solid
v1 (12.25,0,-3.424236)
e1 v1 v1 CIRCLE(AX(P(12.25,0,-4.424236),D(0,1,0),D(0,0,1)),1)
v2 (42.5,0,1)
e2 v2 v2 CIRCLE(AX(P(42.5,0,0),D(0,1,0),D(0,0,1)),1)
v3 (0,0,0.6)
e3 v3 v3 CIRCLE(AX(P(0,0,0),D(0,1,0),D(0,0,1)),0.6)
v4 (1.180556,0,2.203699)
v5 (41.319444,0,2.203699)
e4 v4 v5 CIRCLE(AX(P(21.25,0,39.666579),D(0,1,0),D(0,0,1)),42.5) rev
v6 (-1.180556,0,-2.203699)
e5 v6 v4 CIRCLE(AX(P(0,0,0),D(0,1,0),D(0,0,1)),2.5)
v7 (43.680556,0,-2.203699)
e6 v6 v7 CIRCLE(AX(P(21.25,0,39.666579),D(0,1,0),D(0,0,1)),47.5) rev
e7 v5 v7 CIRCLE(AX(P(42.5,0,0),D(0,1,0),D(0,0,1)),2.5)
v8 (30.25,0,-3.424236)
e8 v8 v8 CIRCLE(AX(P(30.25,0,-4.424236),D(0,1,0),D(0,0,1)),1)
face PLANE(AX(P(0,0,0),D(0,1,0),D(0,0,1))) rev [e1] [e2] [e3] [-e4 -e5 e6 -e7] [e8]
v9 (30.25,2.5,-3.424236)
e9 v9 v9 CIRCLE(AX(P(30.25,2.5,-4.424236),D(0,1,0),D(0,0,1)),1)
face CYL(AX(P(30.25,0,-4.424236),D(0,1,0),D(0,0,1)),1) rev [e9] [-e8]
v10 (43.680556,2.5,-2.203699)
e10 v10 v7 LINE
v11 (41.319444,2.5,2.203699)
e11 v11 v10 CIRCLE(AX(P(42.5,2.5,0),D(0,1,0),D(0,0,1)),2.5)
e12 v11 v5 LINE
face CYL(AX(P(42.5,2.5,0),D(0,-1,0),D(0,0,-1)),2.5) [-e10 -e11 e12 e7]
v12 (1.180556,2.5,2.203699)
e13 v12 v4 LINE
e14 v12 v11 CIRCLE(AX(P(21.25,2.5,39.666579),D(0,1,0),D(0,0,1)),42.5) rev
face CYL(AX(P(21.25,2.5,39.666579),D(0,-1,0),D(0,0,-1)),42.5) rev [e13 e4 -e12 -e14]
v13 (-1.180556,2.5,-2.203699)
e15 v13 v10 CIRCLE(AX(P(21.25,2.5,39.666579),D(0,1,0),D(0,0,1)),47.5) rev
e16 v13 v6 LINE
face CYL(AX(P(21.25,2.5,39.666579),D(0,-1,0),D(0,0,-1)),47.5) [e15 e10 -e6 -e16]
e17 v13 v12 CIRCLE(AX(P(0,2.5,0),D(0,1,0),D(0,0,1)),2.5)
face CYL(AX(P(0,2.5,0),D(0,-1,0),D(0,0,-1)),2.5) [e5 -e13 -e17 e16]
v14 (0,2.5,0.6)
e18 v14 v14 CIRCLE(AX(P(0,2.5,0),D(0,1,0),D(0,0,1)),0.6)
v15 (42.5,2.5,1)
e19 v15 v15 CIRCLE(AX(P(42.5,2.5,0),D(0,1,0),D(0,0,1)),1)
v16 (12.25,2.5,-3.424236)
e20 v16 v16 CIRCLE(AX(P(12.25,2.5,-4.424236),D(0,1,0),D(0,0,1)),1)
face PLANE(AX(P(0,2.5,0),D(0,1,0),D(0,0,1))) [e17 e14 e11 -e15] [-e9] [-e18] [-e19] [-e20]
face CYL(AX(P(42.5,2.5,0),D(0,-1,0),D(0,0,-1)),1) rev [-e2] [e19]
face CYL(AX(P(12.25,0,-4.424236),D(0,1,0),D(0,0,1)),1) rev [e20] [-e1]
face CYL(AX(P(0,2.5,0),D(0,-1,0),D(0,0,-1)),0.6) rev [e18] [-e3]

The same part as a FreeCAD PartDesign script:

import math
import FreeCAD as App
import Part
import Sketcher

V = App.Vector

doc = App.newDocument("Part")
body = doc.addObject("PartDesign::Body", "Body")

# Sketch on XZ plane
sketch1 = body.newObject("Sketcher::SketchObject", "Sketch")
sketch1.AttachmentSupport = (doc.getObject("XZ_Plane"), [""])
sketch1.MapMode = "FlatFace"
sketch1.addGeometry(Part.ArcOfCircle(Part.Circle(V(0, 0, 0), V(0, 0, 1), 2.5), math.radians(62), math.radians(242)), False)
sketch1.addGeometry(Part.ArcOfCircle(Part.Circle(V(21.2, 39.7, 0), V(0, 0, 1), 42.5), math.radians(-118), math.radians(-62)), False)
sketch1.addGeometry(Part.ArcOfCircle(Part.Circle(V(42.5, 0, 0), V(0, 0, 1), 2.5), math.radians(-62), math.radians(118)), False)
sketch1.addGeometry(Part.ArcOfCircle(Part.Circle(V(21.2, 39.7, 0), V(0, 0, 1), 47.5), math.radians(-118), math.radians(-62)), False)
sketch1.addGeometry(Part.Circle(V(0, 0, 0), V(0, 0, 1), 0.6), False)
sketch1.addGeometry(Part.Circle(V(42.5, 0, 0), V(0, 0, 1), 1), False)
sketch1.addConstraint(Sketcher.Constraint("Tangent", 0, 1, 1, 1))
sketch1.addConstraint(Sketcher.Constraint("Tangent", 1, 2, 2, 2))
sketch1.addConstraint(Sketcher.Constraint("Tangent", 2, 1, 3, 2))
sketch1.addConstraint(Sketcher.Constraint("Tangent", 3, 1, 0, 2))
sketch1.addConstraint(Sketcher.Constraint("Coincident", 0, 3, -1, 1))
sketch1.addConstraint(Sketcher.Constraint("Coincident", 4, 3, -1, 1))
sketch1.addConstraint(Sketcher.Constraint("Coincident", 3, 3, 1, 3))
sketch1.addConstraint(Sketcher.Constraint("Coincident", 5, 3, 2, 3))
sketch1.addConstraint(Sketcher.Constraint("PointOnObject", 2, 3, -1))
sketch1.addConstraint(Sketcher.Constraint("Diameter", 5, 2.0))
sketch1.addConstraint(Sketcher.Constraint("Diameter", 4, 1.2))
sketch1.addConstraint(Sketcher.Constraint("Radius", 0, 2.5))
sketch1.addConstraint(Sketcher.Constraint("Radius", 1, 42.5))
sketch1.addConstraint(Sketcher.Constraint("DistanceX", -1, 1, 2, 3, 42.5))
pad1 = body.newObject("PartDesign::Pad", "Pad")
pad1.Profile = sketch1
pad1.Length = 2.5
pad1.Reversed = True

# Sketch on XZ plane
sketch2 = body.newObject("Sketcher::SketchObject", "Sketch001")
sketch2.AttachmentSupport = (doc.getObject("XZ_Plane"), [""])
sketch2.MapMode = "FlatFace"
sketch2.AttachmentOffset = App.Placement(V(0, 0, -2.5), App.Rotation())
sketch2.addGeometry(Part.Circle(V(12.2, -4.4, 0), V(0, 0, 1), 1), False)
sketch2.addGeometry(Part.Circle(V(30.2, -4.4, 0), V(0, 0, 1), 1), False)
sketch2.addConstraint(Sketcher.Constraint("Equal", 0, 1))
sketch2.addConstraint(Sketcher.Constraint("Horizontal", 0, 3, 1, 3))
sketch2.addConstraint(Sketcher.Constraint("Diameter", 0, 2.0))
sketch2.addConstraint(Sketcher.Constraint("DistanceX", 0, 3, 1, 3, 18.0))
sketch2.addConstraint(Sketcher.Constraint("DistanceX", -1, 1, 0, 3, 12.25))
sketch2.addConstraint(Sketcher.Constraint("DistanceY", 0, 3, -1, 1, 4.424236))
pocket1 = body.newObject("PartDesign::Pocket", "Pocket")
pocket1.Profile = sketch2
pocket1.Type = "ThroughAll"
pocket1.Reversed = True

doc.recompute()
